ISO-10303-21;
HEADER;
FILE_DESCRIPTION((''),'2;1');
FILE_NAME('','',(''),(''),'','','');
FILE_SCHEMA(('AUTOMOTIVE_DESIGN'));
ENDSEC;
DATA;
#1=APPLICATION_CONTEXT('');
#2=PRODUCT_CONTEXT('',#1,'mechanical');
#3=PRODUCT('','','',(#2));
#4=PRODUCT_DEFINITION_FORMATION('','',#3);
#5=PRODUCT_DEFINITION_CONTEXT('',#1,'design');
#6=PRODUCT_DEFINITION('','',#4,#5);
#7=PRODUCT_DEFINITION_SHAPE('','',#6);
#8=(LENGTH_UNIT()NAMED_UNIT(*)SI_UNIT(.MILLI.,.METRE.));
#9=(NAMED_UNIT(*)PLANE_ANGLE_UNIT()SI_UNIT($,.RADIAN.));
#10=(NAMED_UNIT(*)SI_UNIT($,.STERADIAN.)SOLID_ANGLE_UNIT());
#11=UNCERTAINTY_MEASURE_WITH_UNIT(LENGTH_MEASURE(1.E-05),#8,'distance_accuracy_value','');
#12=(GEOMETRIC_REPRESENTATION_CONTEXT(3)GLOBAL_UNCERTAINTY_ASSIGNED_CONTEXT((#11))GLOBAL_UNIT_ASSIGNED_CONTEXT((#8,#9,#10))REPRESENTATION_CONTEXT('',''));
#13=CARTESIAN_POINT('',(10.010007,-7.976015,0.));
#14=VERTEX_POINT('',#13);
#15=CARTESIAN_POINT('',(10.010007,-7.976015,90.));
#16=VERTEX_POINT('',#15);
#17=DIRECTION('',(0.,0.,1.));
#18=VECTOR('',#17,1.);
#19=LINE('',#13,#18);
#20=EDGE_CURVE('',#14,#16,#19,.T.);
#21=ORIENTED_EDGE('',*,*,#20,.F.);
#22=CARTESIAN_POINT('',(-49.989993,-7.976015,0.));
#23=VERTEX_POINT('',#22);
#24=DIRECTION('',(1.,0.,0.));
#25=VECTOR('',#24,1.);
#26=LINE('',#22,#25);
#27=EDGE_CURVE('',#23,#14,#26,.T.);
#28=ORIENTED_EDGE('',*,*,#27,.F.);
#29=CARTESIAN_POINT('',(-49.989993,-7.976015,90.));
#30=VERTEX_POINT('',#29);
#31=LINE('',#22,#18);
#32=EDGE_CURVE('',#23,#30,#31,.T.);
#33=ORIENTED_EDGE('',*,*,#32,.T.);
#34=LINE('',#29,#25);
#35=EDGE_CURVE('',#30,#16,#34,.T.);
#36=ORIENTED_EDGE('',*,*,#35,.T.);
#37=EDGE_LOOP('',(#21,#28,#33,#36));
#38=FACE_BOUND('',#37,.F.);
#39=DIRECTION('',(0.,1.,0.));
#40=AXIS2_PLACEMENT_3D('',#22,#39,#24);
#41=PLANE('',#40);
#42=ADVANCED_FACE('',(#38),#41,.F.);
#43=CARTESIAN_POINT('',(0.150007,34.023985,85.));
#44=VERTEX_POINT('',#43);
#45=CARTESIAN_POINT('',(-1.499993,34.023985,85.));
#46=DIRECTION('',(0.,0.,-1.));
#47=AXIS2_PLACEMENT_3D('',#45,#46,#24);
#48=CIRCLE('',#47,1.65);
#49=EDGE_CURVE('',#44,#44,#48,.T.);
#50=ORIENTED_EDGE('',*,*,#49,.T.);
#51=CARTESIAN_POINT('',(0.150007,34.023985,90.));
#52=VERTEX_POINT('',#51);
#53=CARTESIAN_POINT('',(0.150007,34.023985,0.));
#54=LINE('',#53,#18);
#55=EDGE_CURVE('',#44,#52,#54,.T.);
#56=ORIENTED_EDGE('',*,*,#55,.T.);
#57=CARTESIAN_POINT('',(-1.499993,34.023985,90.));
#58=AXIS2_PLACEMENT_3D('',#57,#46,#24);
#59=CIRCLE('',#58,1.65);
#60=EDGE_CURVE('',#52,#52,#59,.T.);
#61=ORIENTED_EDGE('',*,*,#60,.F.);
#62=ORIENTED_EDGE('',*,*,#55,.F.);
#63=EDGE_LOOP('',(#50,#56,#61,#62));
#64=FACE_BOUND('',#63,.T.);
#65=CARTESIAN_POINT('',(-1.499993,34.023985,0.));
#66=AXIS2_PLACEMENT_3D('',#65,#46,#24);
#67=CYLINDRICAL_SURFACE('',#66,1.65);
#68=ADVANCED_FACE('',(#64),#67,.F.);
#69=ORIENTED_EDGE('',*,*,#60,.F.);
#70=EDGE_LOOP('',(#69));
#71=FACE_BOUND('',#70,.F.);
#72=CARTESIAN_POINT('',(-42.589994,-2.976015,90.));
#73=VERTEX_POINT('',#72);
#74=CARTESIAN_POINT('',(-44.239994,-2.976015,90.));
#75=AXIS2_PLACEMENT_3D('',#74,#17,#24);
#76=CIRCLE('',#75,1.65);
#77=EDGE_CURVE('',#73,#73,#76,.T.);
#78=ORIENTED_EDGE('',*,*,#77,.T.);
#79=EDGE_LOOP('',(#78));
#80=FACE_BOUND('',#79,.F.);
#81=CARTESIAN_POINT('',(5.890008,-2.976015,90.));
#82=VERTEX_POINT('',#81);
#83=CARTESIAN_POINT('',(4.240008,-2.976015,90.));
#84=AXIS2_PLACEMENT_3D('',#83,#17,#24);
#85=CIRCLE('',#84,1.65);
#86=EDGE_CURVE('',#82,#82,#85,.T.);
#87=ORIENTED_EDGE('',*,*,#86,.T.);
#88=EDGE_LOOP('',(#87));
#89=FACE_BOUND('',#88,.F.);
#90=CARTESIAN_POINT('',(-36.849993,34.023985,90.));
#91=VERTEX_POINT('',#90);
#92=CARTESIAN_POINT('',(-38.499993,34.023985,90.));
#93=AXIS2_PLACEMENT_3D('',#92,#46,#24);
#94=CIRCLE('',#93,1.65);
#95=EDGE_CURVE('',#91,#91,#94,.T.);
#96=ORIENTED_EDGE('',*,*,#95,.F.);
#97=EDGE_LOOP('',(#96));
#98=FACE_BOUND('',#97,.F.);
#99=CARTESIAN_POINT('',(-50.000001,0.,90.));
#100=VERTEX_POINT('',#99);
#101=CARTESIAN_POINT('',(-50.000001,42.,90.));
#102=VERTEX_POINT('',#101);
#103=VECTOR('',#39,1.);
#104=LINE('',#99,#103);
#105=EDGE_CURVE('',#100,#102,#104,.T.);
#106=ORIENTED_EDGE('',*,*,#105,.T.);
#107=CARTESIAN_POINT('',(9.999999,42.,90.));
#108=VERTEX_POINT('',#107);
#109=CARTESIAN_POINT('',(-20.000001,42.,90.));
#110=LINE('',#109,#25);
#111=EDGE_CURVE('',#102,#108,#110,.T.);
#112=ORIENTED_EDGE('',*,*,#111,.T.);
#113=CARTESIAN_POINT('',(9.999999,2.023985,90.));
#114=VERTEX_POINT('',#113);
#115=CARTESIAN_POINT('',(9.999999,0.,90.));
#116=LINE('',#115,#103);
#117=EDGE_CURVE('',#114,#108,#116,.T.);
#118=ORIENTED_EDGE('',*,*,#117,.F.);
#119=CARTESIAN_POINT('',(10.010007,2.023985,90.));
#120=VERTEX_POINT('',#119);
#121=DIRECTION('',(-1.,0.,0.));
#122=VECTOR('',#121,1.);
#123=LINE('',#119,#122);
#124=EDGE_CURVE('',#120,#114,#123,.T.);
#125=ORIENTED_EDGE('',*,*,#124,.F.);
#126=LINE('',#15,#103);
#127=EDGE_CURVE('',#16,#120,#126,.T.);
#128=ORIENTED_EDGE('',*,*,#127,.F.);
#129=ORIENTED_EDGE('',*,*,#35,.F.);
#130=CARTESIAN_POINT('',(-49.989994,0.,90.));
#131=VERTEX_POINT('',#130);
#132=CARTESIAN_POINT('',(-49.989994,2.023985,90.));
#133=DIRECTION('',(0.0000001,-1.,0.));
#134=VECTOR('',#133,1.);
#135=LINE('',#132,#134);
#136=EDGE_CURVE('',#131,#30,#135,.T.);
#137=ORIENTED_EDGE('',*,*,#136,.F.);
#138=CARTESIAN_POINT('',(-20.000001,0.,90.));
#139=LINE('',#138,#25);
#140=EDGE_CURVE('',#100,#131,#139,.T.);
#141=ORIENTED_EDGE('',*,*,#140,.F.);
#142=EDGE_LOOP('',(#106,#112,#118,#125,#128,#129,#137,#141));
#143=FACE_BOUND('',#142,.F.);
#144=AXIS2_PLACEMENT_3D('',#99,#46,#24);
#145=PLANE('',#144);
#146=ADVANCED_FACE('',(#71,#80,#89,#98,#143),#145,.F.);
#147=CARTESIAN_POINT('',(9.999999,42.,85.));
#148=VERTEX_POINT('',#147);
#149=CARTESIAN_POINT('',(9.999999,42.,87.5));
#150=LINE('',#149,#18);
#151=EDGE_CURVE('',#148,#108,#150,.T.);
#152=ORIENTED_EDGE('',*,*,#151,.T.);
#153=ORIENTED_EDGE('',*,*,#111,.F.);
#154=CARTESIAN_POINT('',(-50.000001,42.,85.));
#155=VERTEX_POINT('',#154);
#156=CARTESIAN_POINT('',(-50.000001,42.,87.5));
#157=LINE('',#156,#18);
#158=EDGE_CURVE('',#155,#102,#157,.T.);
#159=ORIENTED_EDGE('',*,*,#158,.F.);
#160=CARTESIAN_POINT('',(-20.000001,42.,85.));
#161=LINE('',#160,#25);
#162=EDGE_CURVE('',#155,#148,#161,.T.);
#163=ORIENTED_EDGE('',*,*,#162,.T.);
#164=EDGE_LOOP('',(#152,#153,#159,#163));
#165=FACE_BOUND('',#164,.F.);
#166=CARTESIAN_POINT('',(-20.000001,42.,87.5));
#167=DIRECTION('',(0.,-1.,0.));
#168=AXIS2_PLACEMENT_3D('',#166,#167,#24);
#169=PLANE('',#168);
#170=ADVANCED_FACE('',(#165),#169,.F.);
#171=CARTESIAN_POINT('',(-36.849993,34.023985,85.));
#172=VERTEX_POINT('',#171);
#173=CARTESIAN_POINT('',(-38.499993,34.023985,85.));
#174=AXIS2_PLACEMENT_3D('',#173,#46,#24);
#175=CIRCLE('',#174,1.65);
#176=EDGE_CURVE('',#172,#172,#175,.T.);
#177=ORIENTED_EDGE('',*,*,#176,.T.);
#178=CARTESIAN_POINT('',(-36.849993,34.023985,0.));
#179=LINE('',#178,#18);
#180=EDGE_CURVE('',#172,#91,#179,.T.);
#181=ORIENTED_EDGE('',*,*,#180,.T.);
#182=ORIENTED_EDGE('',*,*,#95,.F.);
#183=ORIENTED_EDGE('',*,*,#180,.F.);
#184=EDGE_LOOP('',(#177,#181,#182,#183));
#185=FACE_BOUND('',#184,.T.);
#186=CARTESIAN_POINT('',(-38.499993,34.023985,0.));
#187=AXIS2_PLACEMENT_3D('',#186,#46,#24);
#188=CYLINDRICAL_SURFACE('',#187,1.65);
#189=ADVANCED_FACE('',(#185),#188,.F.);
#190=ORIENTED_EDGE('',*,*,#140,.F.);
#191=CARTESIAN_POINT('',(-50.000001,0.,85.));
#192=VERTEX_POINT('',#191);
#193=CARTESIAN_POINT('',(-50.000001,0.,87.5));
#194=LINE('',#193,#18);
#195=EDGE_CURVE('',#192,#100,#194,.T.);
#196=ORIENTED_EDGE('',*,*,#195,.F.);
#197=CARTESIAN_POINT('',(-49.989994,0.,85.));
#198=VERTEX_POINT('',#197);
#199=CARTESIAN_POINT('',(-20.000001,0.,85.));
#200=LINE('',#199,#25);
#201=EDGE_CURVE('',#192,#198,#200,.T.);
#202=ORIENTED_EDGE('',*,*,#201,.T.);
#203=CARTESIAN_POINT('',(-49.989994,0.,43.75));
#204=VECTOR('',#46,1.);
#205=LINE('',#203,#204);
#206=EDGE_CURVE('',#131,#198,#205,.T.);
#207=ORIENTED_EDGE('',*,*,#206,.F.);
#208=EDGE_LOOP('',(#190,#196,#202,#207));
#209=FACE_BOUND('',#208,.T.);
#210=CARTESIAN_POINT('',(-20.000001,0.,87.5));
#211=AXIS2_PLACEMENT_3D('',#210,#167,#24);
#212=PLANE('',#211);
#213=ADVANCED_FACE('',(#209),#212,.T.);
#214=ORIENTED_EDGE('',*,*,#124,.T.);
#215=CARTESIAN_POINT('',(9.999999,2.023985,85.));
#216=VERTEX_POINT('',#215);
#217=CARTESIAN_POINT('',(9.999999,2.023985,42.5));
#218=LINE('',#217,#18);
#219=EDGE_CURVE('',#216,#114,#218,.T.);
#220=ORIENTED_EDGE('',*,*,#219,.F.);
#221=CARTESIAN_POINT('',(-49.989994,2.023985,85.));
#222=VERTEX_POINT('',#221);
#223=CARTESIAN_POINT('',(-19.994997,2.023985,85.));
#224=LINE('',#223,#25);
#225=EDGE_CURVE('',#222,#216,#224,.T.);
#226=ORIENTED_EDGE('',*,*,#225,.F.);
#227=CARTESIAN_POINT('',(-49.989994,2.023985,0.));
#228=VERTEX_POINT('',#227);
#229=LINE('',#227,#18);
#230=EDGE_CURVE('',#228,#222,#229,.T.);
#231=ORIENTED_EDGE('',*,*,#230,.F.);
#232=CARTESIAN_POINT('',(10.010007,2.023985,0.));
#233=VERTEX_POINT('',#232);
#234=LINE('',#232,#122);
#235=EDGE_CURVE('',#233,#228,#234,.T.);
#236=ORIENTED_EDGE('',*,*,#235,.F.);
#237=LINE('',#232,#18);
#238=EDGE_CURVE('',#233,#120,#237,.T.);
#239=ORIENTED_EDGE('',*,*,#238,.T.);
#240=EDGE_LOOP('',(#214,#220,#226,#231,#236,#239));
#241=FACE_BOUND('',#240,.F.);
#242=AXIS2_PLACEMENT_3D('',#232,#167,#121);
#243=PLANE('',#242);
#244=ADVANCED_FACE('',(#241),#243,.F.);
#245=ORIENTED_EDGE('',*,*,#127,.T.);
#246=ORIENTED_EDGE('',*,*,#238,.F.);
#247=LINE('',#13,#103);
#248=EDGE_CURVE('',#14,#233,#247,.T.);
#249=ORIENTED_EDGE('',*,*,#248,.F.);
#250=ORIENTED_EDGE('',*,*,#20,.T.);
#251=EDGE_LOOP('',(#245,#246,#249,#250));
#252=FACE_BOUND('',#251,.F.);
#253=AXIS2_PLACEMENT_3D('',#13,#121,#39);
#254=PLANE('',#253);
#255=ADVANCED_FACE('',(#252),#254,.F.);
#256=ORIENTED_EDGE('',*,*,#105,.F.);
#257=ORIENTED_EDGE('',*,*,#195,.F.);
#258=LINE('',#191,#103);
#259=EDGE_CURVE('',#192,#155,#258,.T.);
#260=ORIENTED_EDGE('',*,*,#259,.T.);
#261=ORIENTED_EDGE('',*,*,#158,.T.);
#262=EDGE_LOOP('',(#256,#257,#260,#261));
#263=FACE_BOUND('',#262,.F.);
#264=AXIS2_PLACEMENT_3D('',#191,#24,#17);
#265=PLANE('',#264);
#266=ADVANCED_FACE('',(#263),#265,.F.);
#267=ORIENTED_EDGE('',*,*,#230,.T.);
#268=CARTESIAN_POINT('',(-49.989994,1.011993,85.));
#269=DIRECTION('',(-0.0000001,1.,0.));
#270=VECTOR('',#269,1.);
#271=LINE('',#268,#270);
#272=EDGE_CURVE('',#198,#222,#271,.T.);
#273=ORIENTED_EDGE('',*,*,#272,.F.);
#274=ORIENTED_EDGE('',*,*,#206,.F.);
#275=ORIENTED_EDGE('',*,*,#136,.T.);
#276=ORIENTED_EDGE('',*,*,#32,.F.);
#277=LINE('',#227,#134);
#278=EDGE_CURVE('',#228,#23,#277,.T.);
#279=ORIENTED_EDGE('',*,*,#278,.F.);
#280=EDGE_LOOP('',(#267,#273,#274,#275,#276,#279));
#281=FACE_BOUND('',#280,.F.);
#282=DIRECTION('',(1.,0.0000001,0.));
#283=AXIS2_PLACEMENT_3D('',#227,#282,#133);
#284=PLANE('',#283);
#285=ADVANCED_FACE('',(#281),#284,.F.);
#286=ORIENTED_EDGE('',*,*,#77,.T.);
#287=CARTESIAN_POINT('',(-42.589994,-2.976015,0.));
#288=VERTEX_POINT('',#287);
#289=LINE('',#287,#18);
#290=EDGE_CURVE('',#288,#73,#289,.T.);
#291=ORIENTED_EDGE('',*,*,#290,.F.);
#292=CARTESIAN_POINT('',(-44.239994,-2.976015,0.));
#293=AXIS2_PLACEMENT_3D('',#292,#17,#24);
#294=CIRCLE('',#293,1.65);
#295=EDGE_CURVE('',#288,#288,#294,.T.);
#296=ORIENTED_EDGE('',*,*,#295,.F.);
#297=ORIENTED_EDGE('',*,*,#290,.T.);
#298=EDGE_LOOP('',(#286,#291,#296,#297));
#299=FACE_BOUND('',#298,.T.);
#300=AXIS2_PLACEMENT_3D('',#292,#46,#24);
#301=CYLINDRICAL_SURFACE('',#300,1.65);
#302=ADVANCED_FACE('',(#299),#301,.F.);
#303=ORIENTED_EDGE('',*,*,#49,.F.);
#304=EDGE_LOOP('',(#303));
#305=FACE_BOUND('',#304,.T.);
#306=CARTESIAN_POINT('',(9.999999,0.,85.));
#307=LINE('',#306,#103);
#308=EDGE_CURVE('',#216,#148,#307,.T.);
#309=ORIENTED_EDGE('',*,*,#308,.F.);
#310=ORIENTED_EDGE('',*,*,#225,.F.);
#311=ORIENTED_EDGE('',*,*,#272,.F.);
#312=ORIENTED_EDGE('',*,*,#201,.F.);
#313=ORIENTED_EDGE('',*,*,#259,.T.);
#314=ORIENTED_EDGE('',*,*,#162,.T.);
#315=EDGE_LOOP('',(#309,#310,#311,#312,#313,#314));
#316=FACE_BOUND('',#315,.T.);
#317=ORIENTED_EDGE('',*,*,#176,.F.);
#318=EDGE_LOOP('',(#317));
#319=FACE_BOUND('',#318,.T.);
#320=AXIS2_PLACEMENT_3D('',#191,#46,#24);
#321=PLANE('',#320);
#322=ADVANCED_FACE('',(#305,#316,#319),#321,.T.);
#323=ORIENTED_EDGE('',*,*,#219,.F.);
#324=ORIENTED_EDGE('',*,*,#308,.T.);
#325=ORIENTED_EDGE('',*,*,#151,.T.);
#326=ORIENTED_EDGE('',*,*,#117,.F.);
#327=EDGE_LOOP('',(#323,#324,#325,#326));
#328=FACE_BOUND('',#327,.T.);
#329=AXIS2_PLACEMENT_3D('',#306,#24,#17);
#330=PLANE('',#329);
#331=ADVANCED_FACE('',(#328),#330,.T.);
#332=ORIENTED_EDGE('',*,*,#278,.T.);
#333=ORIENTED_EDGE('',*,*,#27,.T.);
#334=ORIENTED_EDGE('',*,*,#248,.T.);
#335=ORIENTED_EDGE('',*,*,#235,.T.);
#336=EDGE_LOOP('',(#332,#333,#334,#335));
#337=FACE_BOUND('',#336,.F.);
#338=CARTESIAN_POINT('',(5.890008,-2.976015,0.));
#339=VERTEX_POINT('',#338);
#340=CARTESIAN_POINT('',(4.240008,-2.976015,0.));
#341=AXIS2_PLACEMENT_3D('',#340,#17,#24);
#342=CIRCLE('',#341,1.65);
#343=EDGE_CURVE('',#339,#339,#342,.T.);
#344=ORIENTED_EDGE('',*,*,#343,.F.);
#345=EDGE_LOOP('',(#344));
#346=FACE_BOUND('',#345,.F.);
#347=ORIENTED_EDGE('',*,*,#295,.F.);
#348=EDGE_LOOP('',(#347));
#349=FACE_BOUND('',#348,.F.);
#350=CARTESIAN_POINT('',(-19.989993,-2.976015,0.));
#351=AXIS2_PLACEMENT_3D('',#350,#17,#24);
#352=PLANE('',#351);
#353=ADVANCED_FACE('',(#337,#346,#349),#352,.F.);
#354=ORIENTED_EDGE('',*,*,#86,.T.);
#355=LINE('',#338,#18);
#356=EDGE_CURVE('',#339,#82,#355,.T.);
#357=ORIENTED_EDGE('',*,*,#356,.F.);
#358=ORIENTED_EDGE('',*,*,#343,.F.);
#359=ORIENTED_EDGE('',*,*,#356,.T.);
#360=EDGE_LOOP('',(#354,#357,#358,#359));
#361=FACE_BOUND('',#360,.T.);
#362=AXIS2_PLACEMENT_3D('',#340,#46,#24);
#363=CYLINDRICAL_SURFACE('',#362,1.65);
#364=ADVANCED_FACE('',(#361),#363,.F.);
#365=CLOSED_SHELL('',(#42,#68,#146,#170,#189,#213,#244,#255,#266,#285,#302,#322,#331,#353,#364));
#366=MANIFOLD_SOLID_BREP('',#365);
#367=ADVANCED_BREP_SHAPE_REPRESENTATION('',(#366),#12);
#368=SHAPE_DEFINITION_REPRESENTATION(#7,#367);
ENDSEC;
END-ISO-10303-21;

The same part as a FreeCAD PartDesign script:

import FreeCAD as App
import Part
import Sketcher

doc = App.newDocument("Part")
body = doc.addObject("PartDesign::Body", "Body")

# Sketch on XY plane
sketch1 = body.newObject("Sketcher::SketchObject", "Sketch")
sketch1.AttachmentSupport = (doc.getObject("XY_Plane"), [""])
sketch1.MapMode = "FlatFace"
sketch1.addGeometry([
    Part.LineSegment(App.Vector(-49.989993, -7.976015, 0), App.Vector(10.010007, -7.976015, 0)),  # 0
    Part.LineSegment(App.Vector(10.010007, -7.976015, 0), App.Vector(10.010007, 2.023985, 0)),  # 1
    Part.LineSegment(App.Vector(10.010007, 2.023985, 0), App.Vector(-49.989994, 2.023985, 0)),  # 2
    Part.LineSegment(App.Vector(-49.989994, 2.023985, 0), App.Vector(-49.989993, -7.976015, 0)),  # 3
    Part.Circle(App.Vector(-44.239994, -2.976015, 0), App.Vector(0, 0, 1), 1.65),  # 4
    Part.Circle(App.Vector(4.240008, -2.976015, 0), App.Vector(0, 0, 1), 1.65),  # 5
], False)
sketch1.addConstraint([
    Sketcher.Constraint("Coincident", 0, 2, 1, 1),
    Sketcher.Constraint("Coincident", 1, 2, 2, 1),
    Sketcher.Constraint("Coincident", 2, 2, 3, 1),
    Sketcher.Constraint("Coincident", 3, 2, 0, 1),
    Sketcher.Constraint("Horizontal", 0),
    Sketcher.Constraint("Vertical", 1),
    Sketcher.Constraint("Horizontal", 2),
    Sketcher.Constraint("Vertical", 3),
    Sketcher.Constraint("Equal", 4, 5),
    Sketcher.Constraint("Horizontal", 4, 3, 5, 3),
    Sketcher.Constraint("Diameter", 4, 3.3),
    Sketcher.Constraint("DistanceX", 0, 1, 0, 2, 60.0),
    Sketcher.Constraint("DistanceY", 1, 1, 1, 2, 10.0),
    Sketcher.Constraint("DistanceY", 0, 2, 5, 3, 5.0),
    Sketcher.Constraint("DistanceX", 5, 3, 0, 2, 5.769999),
    Sketcher.Constraint("DistanceX", 4, 3, 0, 2, 54.250001),
    Sketcher.Constraint("DistanceX", -1, 1, 5, 3, 4.240008),
    Sketcher.Constraint("DistanceY", 4, 3, -1, 1, 2.976015),
])
pad1 = body.newObject("PartDesign::Pad", "Pad")
pad1.Profile = sketch1
pad1.Length = 90

# Sketch on XZ plane
sketch2 = body.newObject("Sketcher::SketchObject", "Sketch001")
sketch2.AttachmentSupport = (doc.getObject("XZ_Plane"), [""])
sketch2.MapMode = "FlatFace"
sketch2.addGeometry([
    Part.LineSegment(App.Vector(-50.000001, 90, 0), App.Vector(-50.000001, 85, 0)),
    Part.LineSegment(App.Vector(-50.000001, 85, 0), App.Vector(9.999999, 85, 0)),
    Part.LineSegment(App.Vector(9.999999, 85, 0), App.Vector(9.999999, 90, 0)),
    Part.LineSegment(App.Vector(9.999999, 90, 0), App.Vector(-50.000001, 90, 0)),
], False)
sketch2.addConstraint([
    Sketcher.Constraint("Coincident", 0, 2, 1, 1),
    Sketcher.Constraint("Coincident", 1, 2, 2, 1),
    Sketcher.Constraint("Coincident", 2, 2, 3, 1),
    Sketcher.Constraint("Coincident", 3, 2, 0, 1),
    Sketcher.Constraint("Vertical", 0),
    Sketcher.Constraint("Horizontal", 1),
    Sketcher.Constraint("Vertical", 2),
    Sketcher.Constraint("Horizontal", 3),
    Sketcher.Constraint("DistanceX", 1, 1, 1, 2, 60.0),
    Sketcher.Constraint("DistanceY", 0, 2, 0, 1, 5.0),
    Sketcher.Constraint("DistanceX", 0, 2, -1, 1, 50.000001),
    Sketcher.Constraint("DistanceY", -1, 1, 0, 2, 85.0),
])
pad2 = body.newObject("PartDesign::Pad", "Pad001")
pad2.Profile = sketch2
pad2.Length = 42
pad2.Reversed = True

# Sketch on XY plane
sketch3 = body.newObject("Sketcher::SketchObject", "Sketch002")
sketch3.AttachmentSupport = (doc.getObject("XY_Plane"), [""])
sketch3.MapMode = "FlatFace"
sketch3.addGeometry([
    Part.Circle(App.Vector(4.240008, -2.976015, 0), App.Vector(0, 0, 1), 1.65),
    Part.Circle(App.Vector(-44.239994, -2.976015, 0), App.Vector(0, 0, 1), 1.65),
    Part.Circle(App.Vector(-38.499993, 34.023985, 0), App.Vector(0, 0, 1), 1.65),
    Part.Circle(App.Vector(-1.499993, 34.023985, 0), App.Vector(0, 0, 1), 1.65),
], False)
sketch3.addConstraint([
    Sketcher.Constraint("Equal", 0, 1),
    Sketcher.Constraint("Equal", 1, 2),
    Sketcher.Constraint("Equal", 2, 3),
    Sketcher.Constraint("Horizontal", 0, 3, 1, 3),
    Sketcher.Constraint("Horizontal", 2, 3, 3, 3),
    Sketcher.Constraint("Diameter", 0, 3.3),
    Sketcher.Constraint("DistanceY", 1, 3, 2, 3, 37.0),
    Sketcher.Constraint("DistanceX", 2, 3, 3, 3, 37.0),
    Sketcher.Constraint("DistanceX", 1, 3, 2, 3, 5.740001),
    Sketcher.Constraint("DistanceX", 2, 3, 0, 3, 42.740001),
    Sketcher.Constraint("DistanceX", -1, 1, 0, 3, 4.240008),
    Sketcher.Constraint("DistanceY", 0, 3, -1, 1, 2.976015),
])
pocket1 = body.newObject("PartDesign::Pocket", "Pocket")
pocket1.Profile = sketch3
pocket1.Length = 97
pocket1.Reversed = True

doc.recompute()
